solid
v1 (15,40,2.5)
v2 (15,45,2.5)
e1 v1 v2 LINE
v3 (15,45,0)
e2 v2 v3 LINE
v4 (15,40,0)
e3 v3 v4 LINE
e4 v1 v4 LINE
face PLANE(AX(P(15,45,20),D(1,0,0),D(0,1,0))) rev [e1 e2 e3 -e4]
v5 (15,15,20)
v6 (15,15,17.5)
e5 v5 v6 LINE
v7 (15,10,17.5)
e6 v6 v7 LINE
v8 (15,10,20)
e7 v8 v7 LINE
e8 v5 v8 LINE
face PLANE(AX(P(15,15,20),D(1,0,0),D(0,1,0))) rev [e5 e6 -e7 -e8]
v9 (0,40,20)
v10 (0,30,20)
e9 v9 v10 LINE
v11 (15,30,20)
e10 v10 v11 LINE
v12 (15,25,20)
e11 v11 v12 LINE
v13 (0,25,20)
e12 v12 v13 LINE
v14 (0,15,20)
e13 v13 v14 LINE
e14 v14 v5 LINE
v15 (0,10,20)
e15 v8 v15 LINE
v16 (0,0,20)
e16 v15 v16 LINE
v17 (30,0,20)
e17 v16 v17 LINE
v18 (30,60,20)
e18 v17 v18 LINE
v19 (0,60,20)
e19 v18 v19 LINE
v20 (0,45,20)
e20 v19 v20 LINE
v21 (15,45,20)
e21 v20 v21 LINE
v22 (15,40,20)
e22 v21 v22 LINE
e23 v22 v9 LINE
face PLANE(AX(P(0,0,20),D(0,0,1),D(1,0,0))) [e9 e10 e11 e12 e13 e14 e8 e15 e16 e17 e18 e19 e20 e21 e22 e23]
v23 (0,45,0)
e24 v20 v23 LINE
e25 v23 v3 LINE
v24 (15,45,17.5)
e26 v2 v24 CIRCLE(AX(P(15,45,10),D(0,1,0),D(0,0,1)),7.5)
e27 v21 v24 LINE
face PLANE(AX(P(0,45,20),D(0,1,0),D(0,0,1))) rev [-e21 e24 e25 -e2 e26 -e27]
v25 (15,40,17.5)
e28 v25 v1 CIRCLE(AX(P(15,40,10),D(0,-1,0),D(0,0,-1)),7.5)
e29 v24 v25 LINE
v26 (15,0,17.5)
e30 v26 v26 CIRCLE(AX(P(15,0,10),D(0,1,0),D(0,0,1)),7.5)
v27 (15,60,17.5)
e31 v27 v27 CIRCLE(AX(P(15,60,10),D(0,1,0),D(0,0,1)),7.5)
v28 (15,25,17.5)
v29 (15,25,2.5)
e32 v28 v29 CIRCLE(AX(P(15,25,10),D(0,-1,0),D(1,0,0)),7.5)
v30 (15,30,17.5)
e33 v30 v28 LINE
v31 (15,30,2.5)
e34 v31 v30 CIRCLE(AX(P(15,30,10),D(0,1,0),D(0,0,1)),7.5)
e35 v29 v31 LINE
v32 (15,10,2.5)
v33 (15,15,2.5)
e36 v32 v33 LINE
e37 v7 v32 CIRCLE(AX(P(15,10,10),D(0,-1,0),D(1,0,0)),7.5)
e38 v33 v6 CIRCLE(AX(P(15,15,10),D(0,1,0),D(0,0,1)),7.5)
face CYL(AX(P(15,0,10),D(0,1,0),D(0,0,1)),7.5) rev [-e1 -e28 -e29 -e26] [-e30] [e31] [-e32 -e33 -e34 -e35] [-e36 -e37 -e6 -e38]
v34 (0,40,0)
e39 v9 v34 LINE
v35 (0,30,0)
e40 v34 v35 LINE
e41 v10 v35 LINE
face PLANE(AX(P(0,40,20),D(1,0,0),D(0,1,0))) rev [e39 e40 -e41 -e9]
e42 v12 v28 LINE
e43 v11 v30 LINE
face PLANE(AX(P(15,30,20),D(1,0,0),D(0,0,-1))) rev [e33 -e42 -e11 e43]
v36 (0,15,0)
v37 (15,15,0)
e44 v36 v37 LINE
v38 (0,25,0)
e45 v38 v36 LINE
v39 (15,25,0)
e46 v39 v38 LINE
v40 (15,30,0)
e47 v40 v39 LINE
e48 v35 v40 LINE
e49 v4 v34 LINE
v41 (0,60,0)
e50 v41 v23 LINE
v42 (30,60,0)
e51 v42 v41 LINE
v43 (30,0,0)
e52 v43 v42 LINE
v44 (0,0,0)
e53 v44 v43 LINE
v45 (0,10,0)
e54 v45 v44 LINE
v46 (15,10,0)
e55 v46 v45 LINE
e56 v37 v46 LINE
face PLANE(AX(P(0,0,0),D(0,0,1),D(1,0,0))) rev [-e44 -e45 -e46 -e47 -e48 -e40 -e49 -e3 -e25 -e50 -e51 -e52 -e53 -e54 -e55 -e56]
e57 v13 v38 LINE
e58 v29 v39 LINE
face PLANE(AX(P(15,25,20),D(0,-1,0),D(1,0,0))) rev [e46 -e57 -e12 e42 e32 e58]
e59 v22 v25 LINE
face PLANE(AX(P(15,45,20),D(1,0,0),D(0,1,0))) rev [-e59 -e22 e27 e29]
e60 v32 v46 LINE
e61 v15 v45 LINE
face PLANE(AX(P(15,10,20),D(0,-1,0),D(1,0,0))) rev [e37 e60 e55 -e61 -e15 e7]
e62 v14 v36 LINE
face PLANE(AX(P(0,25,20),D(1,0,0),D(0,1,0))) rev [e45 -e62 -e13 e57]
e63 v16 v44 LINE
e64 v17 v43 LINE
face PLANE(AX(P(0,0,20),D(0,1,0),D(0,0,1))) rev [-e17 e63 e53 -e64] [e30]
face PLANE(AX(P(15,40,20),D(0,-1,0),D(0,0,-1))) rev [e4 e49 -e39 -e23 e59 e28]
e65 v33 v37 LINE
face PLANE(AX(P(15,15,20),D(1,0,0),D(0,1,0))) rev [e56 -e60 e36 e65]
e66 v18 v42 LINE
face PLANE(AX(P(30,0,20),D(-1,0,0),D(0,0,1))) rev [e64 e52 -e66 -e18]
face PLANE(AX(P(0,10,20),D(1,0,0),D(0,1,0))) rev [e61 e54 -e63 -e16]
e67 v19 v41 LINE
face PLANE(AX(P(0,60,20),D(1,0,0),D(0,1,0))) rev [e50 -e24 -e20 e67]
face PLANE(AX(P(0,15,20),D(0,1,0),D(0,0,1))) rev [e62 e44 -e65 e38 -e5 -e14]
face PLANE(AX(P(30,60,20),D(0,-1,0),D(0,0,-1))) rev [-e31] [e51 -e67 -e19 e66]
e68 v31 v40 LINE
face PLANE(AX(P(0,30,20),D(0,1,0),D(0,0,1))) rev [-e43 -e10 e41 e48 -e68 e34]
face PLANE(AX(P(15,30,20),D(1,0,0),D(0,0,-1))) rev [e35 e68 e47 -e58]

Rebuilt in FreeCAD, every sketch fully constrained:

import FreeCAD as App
import Part
import Sketcher


def add_polygon(sketch, points):
    """Adds a closed chain of lines whose ends are joined by coincident constraints."""
    first, n = sketch.GeometryCount, len(points)
    for a, b in zip(points, points[1:] + points[:1]):
        sketch.addGeometry(Part.LineSegment(App.Vector(*a, 0), App.Vector(*b, 0)), False)
    for i in range(n):
        sketch.addConstraint(Sketcher.Constraint("Coincident", first + i, 2, first + (i + 1) % n, 1))

doc = App.newDocument("Part")
body = doc.addObject("PartDesign::Body", "Body")

sketch1 = body.newObject("Sketcher::SketchObject", "Sketch")
sketch1.AttachmentSupport = (doc.getObject("XY_Plane"), [""])
sketch1.MapMode = "FlatFace"
add_polygon(sketch1, [(0, 0), (30, 0), (30, 60), (0, 60), (0, 45), (15, 45), (15, 40), (0, 40), (0, 30), (15, 30), (15, 25), (0, 25), (0, 15), (15, 15), (15, 10), (0, 10)])
sketch1.addConstraint([
    Sketcher.Constraint("Horizontal", 0),
    Sketcher.Constraint("Vertical", 1),
    Sketcher.Constraint("Horizontal", 2),
    Sketcher.Constraint("Vertical", 3),
    Sketcher.Constraint("Horizontal", 4),
    Sketcher.Constraint("Vertical", 5),
    Sketcher.Constraint("Horizontal", 6),
    Sketcher.Constraint("Vertical", 7),
    Sketcher.Constraint("Horizontal", 8),
    Sketcher.Constraint("Vertical", 9),
    Sketcher.Constraint("Horizontal", 10),
    Sketcher.Constraint("Vertical", 11),
    Sketcher.Constraint("Horizontal", 12),
    Sketcher.Constraint("Vertical", 13),
    Sketcher.Constraint("Horizontal", 14),
    Sketcher.Constraint("Vertical", 15),
    Sketcher.Constraint("Coincident", 15, 2, -1, 1),
    Sketcher.Constraint("PointOnObject", 2, 2, -2),
    Sketcher.Constraint("PointOnObject", 6, 2, -2),
    Sketcher.Constraint("PointOnObject", 10, 2, -2),
    Sketcher.Constraint("Vertical", 5, 2, 8, 2),
    Sketcher.Constraint("Vertical", 9, 2, 12, 2),
    Sketcher.Constraint("Equal", 14, 3),
    Sketcher.Constraint("Equal", 5, 9),
    Sketcher.Constraint("Equal", 7, 11),
    Sketcher.Constraint("Equal", 9, 13),
    Sketcher.Constraint("Equal", 11, 15),
    Sketcher.Constraint("DistanceX", 0, 1, 0, 2, 30.0),
    Sketcher.Constraint("DistanceX", 4, 1, 4, 2, 15.0),
    Sketcher.Constraint("DistanceY", 1, 1, 1, 2, 60.0),
    Sketcher.Constraint("DistanceY", 5, 2, 5, 1, 5.0),
])
pad1 = body.newObject("PartDesign::Pad", "Pad")
pad1.Profile = sketch1
pad1.Length = 20

sketch2 = body.newObject("Sketcher::SketchObject", "Sketch001")
sketch2.AttachmentSupport = (doc.getObject("XZ_Plane"), [""])
sketch2.MapMode = "FlatFace"
sketch2.AttachmentOffset = App.Placement(App.Vector(0, 0, -60), App.Rotation())
sketch2.addGeometry(Part.Circle(App.Vector(15, 10, 0), App.Vector(0, 0, 1), 8), False)
sketch2.addConstraint([
    Sketcher.Constraint("Diameter", 0, 15.0),
    Sketcher.Constraint("DistanceX", -1, 1, 0, 3, 15.0),
    Sketcher.Constraint("DistanceY", -1, 1, 0, 3, 10.0),
])
pocket1 = body.newObject("PartDesign::Pocket", "Pocket")
pocket1.Profile = sketch2
pocket1.Type = "ThroughAll"
pocket1.Reversed = True

doc.recompute()
